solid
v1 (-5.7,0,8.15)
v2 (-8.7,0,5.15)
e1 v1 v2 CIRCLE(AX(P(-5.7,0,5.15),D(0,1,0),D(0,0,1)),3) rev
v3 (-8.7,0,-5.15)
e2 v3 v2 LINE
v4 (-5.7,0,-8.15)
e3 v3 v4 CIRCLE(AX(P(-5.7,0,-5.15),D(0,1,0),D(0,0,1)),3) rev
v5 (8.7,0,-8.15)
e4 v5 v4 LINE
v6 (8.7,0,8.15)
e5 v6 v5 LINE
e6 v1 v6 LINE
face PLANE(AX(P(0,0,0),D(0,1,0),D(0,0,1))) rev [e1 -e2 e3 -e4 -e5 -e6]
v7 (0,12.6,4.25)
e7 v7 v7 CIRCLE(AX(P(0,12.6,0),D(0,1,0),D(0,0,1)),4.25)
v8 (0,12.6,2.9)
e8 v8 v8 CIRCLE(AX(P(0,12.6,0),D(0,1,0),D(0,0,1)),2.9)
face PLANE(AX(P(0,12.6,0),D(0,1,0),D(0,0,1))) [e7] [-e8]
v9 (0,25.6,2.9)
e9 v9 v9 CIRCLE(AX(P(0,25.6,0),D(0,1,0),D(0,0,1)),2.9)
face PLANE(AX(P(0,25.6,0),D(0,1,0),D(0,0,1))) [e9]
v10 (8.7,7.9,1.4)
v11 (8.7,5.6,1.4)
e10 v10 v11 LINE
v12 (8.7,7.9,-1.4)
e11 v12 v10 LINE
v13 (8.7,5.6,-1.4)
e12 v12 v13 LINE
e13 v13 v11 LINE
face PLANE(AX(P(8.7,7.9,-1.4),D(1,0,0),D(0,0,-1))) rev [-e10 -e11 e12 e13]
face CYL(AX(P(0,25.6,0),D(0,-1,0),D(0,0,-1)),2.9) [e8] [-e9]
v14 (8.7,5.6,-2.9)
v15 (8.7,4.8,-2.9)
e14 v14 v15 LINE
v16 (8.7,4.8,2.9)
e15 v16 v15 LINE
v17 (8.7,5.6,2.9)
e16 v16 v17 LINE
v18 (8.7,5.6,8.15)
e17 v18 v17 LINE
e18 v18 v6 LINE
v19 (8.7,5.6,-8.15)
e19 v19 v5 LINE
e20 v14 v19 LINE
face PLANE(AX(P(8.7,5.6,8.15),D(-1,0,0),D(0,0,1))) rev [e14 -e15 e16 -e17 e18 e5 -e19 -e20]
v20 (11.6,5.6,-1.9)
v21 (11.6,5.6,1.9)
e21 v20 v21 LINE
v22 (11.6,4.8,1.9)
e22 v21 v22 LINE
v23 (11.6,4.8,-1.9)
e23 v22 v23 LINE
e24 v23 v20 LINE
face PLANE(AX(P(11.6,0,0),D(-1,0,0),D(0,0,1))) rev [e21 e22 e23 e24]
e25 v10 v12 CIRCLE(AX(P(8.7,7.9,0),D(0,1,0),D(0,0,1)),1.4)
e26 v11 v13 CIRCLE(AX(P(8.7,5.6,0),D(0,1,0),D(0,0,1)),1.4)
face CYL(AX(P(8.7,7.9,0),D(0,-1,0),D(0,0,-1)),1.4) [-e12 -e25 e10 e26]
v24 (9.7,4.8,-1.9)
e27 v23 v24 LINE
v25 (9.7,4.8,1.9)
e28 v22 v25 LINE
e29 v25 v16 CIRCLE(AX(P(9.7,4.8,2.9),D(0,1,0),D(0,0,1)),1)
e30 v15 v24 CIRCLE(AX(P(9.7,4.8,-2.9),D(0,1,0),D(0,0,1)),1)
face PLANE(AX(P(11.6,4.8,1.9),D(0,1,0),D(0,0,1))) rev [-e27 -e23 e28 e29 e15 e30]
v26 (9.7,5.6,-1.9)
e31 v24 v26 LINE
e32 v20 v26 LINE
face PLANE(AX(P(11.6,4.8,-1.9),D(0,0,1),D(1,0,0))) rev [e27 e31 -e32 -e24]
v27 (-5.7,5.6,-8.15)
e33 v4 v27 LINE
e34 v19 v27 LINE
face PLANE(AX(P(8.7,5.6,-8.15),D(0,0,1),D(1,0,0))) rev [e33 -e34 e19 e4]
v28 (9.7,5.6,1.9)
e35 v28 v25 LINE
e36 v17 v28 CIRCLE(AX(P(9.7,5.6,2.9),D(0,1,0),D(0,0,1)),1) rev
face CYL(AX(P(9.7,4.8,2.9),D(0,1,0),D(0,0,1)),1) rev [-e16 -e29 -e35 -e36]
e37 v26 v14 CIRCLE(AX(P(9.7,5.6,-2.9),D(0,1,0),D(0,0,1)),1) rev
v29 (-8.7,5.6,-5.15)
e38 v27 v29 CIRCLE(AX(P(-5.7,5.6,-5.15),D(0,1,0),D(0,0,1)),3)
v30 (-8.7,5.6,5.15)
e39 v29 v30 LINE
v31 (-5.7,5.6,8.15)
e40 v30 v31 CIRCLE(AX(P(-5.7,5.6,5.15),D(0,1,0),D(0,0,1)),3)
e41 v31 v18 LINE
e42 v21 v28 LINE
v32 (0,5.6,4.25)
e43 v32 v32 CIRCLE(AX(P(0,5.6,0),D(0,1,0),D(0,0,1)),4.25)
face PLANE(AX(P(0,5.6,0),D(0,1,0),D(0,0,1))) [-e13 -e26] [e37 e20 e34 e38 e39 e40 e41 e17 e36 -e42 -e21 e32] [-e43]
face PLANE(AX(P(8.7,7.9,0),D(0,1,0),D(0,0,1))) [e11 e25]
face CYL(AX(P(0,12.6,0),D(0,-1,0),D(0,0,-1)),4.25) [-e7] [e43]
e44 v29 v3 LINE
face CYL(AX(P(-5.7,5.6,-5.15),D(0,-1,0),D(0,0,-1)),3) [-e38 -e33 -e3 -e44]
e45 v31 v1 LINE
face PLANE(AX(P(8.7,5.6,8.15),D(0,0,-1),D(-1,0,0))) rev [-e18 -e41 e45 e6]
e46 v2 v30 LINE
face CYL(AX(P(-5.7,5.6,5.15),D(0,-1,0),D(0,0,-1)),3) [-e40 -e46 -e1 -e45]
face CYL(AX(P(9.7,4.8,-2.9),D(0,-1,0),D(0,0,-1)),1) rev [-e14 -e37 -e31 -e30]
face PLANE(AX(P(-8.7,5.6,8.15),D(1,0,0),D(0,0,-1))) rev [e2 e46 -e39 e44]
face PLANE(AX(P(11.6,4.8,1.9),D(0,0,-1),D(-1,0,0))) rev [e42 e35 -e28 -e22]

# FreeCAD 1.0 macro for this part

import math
import FreeCAD as App
import Part
import Sketcher


def edges_at(feature, points):
    """Names of the edges that pass closest to the given points."""
    edges = feature.Shape.Edges
    near = lambda p: min(range(len(edges)), key=lambda i: edges[i].distToShape(Part.Vertex(*p))[0])
    return sorted({f"Edge{near(p) + 1}" for p in points})


def add_polygon(sketch, points):
    """Adds a closed chain of lines whose ends are joined by coincident constraints."""
    first, n = sketch.GeometryCount, len(points)
    for a, b in zip(points, points[1:] + points[:1]):
        sketch.addGeometry(Part.LineSegment(App.Vector(*a, 0), App.Vector(*b, 0)), False)
    for i in range(n):
        sketch.addConstraint(Sketcher.Constraint("Coincident", first + i, 2, first + (i + 1) % n, 1))

doc = App.newDocument("Part")
body = doc.addObject("PartDesign::Body", "Body")

sketch1 = body.newObject("Sketcher::SketchObject", "Sketch")
sketch1.AttachmentSupport = (doc.getObject("XZ_Plane"), [""])
sketch1.MapMode = "FlatFace"
add_polygon(sketch1, [(-8.7, -8.15), (-8.7, 8.15), (8.7, 8.15), (8.7, -8.15)])
sketch1.addConstraint([
    Sketcher.Constraint("Vertical", 0),
    Sketcher.Constraint("Horizontal", 1),
    Sketcher.Constraint("Vertical", 2),
    Sketcher.Constraint("Horizontal", 3),
    Sketcher.Constraint("Symmetric", 0, 2, 2, 2, -1, 1),
    Sketcher.Constraint("DistanceX", 1, 1, 1, 2, 17.4),
    Sketcher.Constraint("DistanceY", 0, 1, 0, 2, 16.3),
])
pad1 = body.newObject("PartDesign::Pad", "Pad")
pad1.Profile = sketch1
pad1.Length = 5.6
pad1.Reversed = True

sketch2 = body.newObject("Sketcher::SketchObject", "Sketch001")
sketch2.AttachmentSupport = (doc.getObject("XZ_Plane"), [""])
sketch2.MapMode = "FlatFace"
sketch2.AttachmentOffset = App.Placement(App.Vector(0, 0, -5.6), App.Rotation())
sketch2.addGeometry(Part.Circle(App.Vector(0, 0, 0), App.Vector(0, 0, 1), 4.25), False)
sketch2.addConstraint([
    Sketcher.Constraint("Coincident", 0, 3, -1, 1),
    Sketcher.Constraint("Diameter", 0, 8.5),
])
pad2 = body.newObject("PartDesign::Pad", "Pad001")
pad2.Profile = sketch2
pad2.Length = 7
pad2.Reversed = True

sketch3 = body.newObject("Sketcher::SketchObject", "Sketch002")
sketch3.AttachmentSupport = (doc.getObject("XZ_Plane"), [""])
sketch3.MapMode = "FlatFace"
sketch3.AttachmentOffset = App.Placement(App.Vector(0, 0, -12.6), App.Rotation())
sketch3.addGeometry(Part.Circle(App.Vector(0, 0, 0), App.Vector(0, 0, 1), 2.9), False)
sketch3.addConstraint([
    Sketcher.Constraint("Coincident", 0, 3, -1, 1),
    Sketcher.Constraint("Diameter", 0, 5.8),
])
pad3 = body.newObject("PartDesign::Pad", "Pad002")
pad3.Profile = sketch3
pad3.Length = 13
pad3.Reversed = True
doc.recompute()

fillet = body.newObject("PartDesign::Fillet", "Fillet")
fillet.Base = (pad3, edges_at(pad3, [(-8.7, 2.8, -8.15), (-8.7, 2.8, 8.15)]))
fillet.Radius = 3

sketch4 = body.newObject("Sketcher::SketchObject", "Sketch003")
sketch4.AttachmentSupport = (doc.getObject("YZ_Plane"), [""])
sketch4.MapMode = "FlatFace"
sketch4.AttachmentOffset = App.Placement(App.Vector(0, 0, 8.7), App.Rotation())
add_polygon(sketch4, [(5.6, 1.9), (4.8, 1.9), (4.8, -1.9), (5.6, -1.9)])
sketch4.addConstraint([
    Sketcher.Constraint("Horizontal", 0),
    Sketcher.Constraint("Vertical", 1),
    Sketcher.Constraint("Horizontal", 2),
    Sketcher.Constraint("Vertical", 3),
    Sketcher.Constraint("DistanceX", 0, 2, 0, 1, 0.8),
    Sketcher.Constraint("DistanceY", 1, 2, 1, 1, 3.8),
    Sketcher.Constraint("DistanceX", -1, 1, 0, 2, 4.8),
    Sketcher.Constraint("DistanceY", -1, 1, 0, 2, 1.9),
])
pad4 = body.newObject("PartDesign::Pad", "Pad003")
pad4.Profile = sketch4
pad4.Length = 2.9
doc.recompute()

fillet2 = body.newObject("PartDesign::Fillet", "Fillet001")
fillet2.Base = (pad4, edges_at(pad4, [(8.7, 5.2, -1.9), (8.7, 5.2, 1.9)]))
fillet2.Radius = 1

sketch5 = body.newObject("Sketcher::SketchObject", "Sketch004")
sketch5.AttachmentSupport = (doc.getObject("XZ_Plane"), [""])
sketch5.MapMode = "FlatFace"
sketch5.AttachmentOffset = App.Placement(App.Vector(0, 0, -5.6), App.Rotation())
sketch5.addGeometry([
    Part.LineSegment(App.Vector(8.7, -1.4, 0), App.Vector(8.7, 1.4, 0)),
    Part.ArcOfCircle(Part.Circle(App.Vector(8.7, 0, 0), App.Vector(0, 0, 1), 1.4), math.radians(-90), math.radians(90)),
], False)
sketch5.addConstraint([
    Sketcher.Constraint("Coincident", 0, 1, 1, 1),
    Sketcher.Constraint("Coincident", 1, 2, 0, 2),
    Sketcher.Constraint("Vertical", 0),
    Sketcher.Constraint("PointOnObject", 1, 3, -1),
    Sketcher.Constraint("Vertical", 1, 3, 0, 1),
    Sketcher.Constraint("Radius", 1, 1.4),
    Sketcher.Constraint("DistanceX", -1, 1, 1, 3, 8.7),
])
pad5 = body.newObject("PartDesign::Pad", "Pad004")
pad5.Profile = sketch5
pad5.Length = 2.3
pad5.Reversed = True

doc.recompute()
